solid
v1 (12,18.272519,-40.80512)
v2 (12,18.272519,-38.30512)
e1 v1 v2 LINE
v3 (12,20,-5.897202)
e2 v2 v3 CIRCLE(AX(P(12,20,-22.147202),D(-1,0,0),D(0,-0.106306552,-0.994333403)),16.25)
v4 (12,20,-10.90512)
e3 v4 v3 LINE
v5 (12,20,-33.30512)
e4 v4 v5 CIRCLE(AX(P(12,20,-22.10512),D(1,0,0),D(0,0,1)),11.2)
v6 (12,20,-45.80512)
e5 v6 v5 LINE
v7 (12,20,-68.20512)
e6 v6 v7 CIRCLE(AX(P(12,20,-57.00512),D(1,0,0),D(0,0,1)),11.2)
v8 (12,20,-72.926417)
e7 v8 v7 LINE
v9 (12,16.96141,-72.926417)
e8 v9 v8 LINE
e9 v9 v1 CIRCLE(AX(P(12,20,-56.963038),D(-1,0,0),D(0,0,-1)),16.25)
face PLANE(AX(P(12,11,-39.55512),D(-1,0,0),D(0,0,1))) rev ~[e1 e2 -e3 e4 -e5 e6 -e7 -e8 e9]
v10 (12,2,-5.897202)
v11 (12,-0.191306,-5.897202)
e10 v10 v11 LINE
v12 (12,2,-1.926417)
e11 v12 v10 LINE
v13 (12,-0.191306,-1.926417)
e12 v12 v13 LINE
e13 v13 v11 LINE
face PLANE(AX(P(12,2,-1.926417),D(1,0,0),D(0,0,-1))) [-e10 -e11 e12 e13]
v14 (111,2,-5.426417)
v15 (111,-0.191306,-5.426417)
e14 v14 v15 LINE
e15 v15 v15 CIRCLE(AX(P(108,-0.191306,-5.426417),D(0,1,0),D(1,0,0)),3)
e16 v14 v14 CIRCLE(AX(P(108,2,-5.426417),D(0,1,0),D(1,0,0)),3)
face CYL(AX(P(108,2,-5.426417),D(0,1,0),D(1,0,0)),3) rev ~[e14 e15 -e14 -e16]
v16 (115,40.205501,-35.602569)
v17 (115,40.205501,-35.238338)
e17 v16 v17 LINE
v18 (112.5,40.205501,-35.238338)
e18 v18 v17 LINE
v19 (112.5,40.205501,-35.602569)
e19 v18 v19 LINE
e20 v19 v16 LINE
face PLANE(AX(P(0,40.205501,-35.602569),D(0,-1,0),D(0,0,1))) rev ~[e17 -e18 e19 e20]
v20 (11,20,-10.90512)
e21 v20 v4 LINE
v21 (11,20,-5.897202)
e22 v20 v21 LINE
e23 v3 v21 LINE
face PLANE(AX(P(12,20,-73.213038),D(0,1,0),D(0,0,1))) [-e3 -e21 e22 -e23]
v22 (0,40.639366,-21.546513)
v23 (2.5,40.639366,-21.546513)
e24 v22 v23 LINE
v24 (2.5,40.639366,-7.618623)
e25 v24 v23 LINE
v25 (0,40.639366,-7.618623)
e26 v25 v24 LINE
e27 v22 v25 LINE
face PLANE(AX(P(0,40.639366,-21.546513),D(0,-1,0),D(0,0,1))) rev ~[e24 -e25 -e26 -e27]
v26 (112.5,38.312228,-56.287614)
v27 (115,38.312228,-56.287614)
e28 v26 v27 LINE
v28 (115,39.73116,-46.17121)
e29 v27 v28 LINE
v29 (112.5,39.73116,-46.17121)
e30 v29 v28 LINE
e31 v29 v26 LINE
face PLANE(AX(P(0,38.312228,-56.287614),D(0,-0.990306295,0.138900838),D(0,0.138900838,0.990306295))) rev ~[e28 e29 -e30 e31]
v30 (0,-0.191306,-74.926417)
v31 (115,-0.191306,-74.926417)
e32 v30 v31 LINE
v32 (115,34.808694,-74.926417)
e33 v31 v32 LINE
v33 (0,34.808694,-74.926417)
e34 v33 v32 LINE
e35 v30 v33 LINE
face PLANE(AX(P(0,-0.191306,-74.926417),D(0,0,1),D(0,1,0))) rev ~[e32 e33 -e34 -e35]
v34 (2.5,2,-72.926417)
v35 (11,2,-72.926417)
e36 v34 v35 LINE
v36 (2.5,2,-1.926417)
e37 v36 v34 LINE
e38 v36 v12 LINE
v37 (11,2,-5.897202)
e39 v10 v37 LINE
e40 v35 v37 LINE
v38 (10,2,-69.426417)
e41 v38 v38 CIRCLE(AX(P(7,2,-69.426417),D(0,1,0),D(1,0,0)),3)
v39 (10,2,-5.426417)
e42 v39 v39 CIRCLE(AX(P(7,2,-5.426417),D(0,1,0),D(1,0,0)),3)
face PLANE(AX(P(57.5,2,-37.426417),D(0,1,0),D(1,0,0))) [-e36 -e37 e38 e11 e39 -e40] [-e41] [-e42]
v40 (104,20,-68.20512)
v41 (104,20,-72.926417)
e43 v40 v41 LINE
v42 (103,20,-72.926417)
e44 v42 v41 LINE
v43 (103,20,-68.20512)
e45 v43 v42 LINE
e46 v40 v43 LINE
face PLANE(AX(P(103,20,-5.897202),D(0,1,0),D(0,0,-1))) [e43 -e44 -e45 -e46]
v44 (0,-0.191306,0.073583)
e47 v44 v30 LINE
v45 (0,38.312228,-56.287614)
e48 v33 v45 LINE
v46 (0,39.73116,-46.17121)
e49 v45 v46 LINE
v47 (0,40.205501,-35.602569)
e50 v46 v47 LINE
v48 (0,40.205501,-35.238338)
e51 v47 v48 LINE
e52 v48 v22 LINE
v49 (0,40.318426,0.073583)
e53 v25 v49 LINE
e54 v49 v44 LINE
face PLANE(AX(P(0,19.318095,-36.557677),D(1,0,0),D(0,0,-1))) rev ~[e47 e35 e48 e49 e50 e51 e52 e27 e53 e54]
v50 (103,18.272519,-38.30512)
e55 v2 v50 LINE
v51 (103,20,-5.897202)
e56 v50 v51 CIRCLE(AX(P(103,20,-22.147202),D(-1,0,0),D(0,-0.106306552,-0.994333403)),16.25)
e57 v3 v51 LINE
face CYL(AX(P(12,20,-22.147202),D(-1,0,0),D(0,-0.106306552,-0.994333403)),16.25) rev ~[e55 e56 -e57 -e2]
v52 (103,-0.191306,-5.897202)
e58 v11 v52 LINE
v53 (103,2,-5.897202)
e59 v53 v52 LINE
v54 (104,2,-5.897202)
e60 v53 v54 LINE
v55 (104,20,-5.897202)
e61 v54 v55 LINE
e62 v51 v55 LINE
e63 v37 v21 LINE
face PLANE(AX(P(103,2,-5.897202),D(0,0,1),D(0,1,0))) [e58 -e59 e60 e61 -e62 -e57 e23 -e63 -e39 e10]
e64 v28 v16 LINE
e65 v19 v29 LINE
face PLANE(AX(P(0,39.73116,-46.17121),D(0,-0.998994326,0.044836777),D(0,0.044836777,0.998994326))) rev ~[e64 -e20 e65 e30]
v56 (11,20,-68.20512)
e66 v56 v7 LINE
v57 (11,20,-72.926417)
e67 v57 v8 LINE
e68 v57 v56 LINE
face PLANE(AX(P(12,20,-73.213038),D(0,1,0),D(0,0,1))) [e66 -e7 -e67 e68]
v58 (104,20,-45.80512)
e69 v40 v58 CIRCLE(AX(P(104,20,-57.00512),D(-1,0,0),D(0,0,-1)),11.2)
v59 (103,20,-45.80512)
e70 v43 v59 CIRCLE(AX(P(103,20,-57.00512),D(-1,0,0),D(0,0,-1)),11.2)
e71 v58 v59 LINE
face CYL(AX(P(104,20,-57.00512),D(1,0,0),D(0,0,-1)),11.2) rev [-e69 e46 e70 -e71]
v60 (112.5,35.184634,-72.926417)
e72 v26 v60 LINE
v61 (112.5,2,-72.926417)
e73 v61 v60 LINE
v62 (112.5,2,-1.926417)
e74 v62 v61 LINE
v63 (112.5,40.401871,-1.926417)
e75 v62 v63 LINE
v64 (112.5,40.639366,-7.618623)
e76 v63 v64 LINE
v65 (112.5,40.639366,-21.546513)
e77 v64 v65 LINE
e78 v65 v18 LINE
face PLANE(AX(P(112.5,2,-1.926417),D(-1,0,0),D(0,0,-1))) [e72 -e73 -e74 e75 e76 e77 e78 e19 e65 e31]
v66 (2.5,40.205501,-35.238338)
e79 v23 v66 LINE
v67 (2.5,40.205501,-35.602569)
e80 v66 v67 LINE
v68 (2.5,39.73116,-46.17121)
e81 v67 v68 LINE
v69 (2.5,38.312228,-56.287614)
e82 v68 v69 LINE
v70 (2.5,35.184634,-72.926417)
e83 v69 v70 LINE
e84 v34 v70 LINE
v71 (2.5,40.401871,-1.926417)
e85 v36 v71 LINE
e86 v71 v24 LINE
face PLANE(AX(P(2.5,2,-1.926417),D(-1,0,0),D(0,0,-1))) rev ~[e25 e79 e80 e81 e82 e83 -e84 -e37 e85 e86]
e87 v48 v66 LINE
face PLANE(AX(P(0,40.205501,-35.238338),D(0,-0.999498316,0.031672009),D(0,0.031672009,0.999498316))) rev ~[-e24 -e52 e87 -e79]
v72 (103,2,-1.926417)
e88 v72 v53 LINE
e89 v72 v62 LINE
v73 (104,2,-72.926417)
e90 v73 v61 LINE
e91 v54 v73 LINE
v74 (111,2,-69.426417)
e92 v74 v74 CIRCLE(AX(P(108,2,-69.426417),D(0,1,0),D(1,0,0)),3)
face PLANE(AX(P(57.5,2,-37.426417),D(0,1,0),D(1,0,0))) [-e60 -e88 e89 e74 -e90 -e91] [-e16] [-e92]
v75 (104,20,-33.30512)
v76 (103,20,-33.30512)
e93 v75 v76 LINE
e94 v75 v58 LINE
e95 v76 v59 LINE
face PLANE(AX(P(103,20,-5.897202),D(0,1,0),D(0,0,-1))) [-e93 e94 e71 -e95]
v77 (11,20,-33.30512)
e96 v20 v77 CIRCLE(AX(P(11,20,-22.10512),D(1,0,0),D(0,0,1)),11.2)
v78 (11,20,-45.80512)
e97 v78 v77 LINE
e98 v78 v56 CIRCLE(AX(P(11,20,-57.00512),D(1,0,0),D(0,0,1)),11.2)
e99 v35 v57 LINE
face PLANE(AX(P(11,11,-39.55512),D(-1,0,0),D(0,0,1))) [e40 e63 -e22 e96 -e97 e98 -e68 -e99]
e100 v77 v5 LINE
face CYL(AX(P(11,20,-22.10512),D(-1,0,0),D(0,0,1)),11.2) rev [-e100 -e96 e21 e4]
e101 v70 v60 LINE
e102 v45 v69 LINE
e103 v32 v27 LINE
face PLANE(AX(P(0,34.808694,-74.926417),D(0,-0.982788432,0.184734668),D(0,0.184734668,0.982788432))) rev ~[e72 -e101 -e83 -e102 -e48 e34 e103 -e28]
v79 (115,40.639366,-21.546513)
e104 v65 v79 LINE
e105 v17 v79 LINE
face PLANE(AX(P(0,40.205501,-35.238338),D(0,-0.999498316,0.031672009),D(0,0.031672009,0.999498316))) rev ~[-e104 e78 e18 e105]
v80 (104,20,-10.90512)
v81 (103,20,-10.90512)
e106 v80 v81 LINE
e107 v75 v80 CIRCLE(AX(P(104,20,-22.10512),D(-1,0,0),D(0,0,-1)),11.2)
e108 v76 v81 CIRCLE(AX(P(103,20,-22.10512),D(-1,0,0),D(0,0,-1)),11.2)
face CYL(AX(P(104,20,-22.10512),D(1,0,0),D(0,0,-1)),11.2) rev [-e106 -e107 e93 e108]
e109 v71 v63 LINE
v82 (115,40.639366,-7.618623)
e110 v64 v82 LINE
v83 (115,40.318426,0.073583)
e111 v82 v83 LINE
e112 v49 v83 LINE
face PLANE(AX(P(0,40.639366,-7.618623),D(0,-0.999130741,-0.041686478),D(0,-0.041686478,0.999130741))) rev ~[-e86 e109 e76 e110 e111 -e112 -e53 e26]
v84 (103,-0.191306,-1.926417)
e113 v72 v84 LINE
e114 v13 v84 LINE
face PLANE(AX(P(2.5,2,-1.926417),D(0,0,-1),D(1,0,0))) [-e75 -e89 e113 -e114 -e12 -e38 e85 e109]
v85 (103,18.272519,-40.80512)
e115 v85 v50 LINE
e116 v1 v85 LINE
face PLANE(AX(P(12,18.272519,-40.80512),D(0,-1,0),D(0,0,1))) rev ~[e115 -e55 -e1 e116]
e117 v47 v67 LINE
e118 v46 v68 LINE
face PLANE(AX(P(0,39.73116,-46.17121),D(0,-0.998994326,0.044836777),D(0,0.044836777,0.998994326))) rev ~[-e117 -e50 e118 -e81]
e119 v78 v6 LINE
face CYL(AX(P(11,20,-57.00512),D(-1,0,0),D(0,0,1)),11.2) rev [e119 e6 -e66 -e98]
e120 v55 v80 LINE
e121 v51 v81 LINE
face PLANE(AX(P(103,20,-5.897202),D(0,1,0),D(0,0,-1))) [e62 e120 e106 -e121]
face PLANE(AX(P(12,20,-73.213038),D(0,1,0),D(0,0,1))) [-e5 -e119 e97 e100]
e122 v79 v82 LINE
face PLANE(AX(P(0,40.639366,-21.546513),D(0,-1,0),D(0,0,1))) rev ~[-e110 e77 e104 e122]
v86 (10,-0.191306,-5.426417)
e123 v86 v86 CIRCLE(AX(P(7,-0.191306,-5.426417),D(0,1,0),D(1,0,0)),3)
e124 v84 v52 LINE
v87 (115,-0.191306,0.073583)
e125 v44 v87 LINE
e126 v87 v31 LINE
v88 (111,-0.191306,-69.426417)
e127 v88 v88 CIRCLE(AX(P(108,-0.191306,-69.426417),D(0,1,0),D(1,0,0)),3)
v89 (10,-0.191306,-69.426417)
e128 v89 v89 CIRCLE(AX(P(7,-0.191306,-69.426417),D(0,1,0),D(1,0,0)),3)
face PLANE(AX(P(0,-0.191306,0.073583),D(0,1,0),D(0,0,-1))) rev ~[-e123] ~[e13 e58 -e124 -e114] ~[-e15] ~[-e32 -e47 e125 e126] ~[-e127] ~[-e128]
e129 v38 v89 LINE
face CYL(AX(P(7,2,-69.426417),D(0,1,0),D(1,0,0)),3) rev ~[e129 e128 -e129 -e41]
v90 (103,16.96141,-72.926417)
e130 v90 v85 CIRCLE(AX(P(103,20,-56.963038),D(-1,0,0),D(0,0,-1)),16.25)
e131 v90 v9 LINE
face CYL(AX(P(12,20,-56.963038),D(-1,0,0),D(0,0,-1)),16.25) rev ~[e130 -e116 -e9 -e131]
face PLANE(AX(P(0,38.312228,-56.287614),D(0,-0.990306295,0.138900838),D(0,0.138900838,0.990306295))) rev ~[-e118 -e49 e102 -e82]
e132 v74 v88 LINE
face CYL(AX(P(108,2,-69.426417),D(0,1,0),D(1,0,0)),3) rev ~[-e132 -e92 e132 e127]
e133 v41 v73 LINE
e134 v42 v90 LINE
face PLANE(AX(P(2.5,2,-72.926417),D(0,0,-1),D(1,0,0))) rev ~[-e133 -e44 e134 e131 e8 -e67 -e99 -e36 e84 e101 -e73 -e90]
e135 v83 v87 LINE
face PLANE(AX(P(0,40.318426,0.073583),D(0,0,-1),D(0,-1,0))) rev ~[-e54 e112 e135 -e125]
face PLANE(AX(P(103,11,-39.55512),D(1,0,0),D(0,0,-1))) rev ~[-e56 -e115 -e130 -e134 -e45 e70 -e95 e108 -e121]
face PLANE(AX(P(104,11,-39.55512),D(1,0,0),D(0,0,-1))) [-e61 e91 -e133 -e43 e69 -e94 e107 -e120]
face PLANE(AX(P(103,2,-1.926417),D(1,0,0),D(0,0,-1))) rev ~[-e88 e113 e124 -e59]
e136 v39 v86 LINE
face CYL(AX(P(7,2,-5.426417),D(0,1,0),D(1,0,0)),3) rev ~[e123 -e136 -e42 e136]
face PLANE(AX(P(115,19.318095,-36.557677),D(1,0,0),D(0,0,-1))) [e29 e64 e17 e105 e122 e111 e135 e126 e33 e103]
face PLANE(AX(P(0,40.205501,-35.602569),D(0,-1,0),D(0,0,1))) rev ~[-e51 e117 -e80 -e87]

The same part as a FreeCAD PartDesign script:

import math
import FreeCAD as App
import Part
import Sketcher

V = App.Vector

doc = App.newDocument("Part")
body = doc.addObject("PartDesign::Body", "Body")

sketch1 = doc.addObject("Sketcher::SketchObject", "Sketch")
body.addObject(sketch1)
sketch1.AttachmentSupport = (doc.YZ_Plane, [""])
sketch1.MapMode = "FlatFace"
sketch1.addGeometry([
    Part.LineSegment(V(40.64, -21.55, 0), V(40.64, -7.62, 0)),
    Part.LineSegment(V(40.64, -7.62, 0), V(40.32, 0.07, 0)),
    Part.LineSegment(V(40.32, 0.07, 0), V(-0.19, 0.07, 0)),
    Part.LineSegment(V(-0.19, 0.07, 0), V(-0.19, -74.93, 0)),
    Part.LineSegment(V(-0.19, -74.93, 0), V(34.81, -74.93, 0)),
    Part.LineSegment(V(34.81, -74.93, 0), V(38.31, -56.29, 0)),
    Part.LineSegment(V(38.31, -56.29, 0), V(39.73, -46.17, 0)),
    Part.LineSegment(V(39.73, -46.17, 0), V(40.21, -35.6, 0)),
    Part.LineSegment(V(40.21, -35.6, 0), V(40.21, -35.24, 0)),
    Part.LineSegment(V(40.21, -35.24, 0), V(40.64, -21.55, 0)),
], False)
sketch1.addConstraint([
    Sketcher.Constraint("Coincident", 0, 2, 1, 1),
    Sketcher.Constraint("Coincident", 1, 2, 2, 1),
    Sketcher.Constraint("Coincident", 2, 2, 3, 1),
    Sketcher.Constraint("Coincident", 3, 2, 4, 1),
    Sketcher.Constraint("Coincident", 4, 2, 5, 1),
    Sketcher.Constraint("Coincident", 5, 2, 6, 1),
    Sketcher.Constraint("Coincident", 6, 2, 7, 1),
    Sketcher.Constraint("Coincident", 7, 2, 8, 1),
    Sketcher.Constraint("Coincident", 8, 2, 9, 1),
    Sketcher.Constraint("Coincident", 9, 2, 0, 1),
    Sketcher.Constraint("Vertical", 0),
    Sketcher.Constraint("Horizontal", 2),
    Sketcher.Constraint("Vertical", 3),
    Sketcher.Constraint("Horizontal", 4),
    Sketcher.Constraint("Vertical", 8),
    Sketcher.Constraint("DistanceX", 4, 1, 4, 2, 35.0),
    Sketcher.Constraint("DistanceY", 3, 2, 3, 1, 75.0),
    Sketcher.Constraint("Distance", 1, 7.698898),
    Sketcher.Constraint("DistanceY", 0, 1, 0, 2, 13.927891),
    Sketcher.Constraint("DistanceY", 8, 1, 8, 2, 0.364231),
    Sketcher.Constraint("DistanceX", -1, 1, 7, 2, 40.205501),
    Sketcher.Constraint("Distance", 6, 10.215429),
    Sketcher.Constraint("Distance", 7, 10.579281),
    Sketcher.Constraint("DistanceX", 2, 2, 2, 1, 40.509732),
    Sketcher.Constraint("DistanceX", -1, 1, 5, 2, 38.312228),
    Sketcher.Constraint("DistanceX", -1, 1, 6, 2, 39.73116),
    Sketcher.Constraint("DistanceY", 6, 2, -1, 1, 46.17121),
    Sketcher.Constraint("DistanceX", 1, 2, 0, 2, 0.32094),
    Sketcher.Constraint("DistanceY", 5, 2, 0, 2, 48.668991),
    Sketcher.Constraint("Distance", 5, 18.965224),
])
pad1 = doc.addObject("PartDesign::Pad", "Pad")
body.addObject(pad1)
pad1.Profile = sketch1
pad1.Length = 115

sketch2 = doc.addObject("Sketcher::SketchObject", "Sketch001")
body.addObject(sketch2)
sketch2.AttachmentSupport = (doc.XZ_Plane, [""])
sketch2.MapMode = "FlatFace"
sketch2.AttachmentOffset = App.Placement(V(0, 0, -2), App.Rotation())
sketch2.addGeometry([
    Part.LineSegment(V(2, -73, 0), V(2, -2, 0)),
    Part.LineSegment(V(2, -2, 0), V(112, -2, 0)),
    Part.LineSegment(V(112, -2, 0), V(112, -73, 0)),
    Part.LineSegment(V(112, -73, 0), V(2, -73, 0)),
], False)
sketch2.addConstraint([
    Sketcher.Constraint("Coincident", 0, 2, 1, 1),
    Sketcher.Constraint("Coincident", 1, 2, 2, 1),
    Sketcher.Constraint("Coincident", 2, 2, 3, 1),
    Sketcher.Constraint("Coincident", 3, 2, 0, 1),
    Sketcher.Constraint("Vertical", 0),
    Sketcher.Constraint("Horizontal", 1),
    Sketcher.Constraint("Vertical", 2),
    Sketcher.Constraint("Horizontal", 3),
    Sketcher.Constraint("DistanceX", 1, 1, 1, 2, 110.0),
    Sketcher.Constraint("DistanceY", 0, 1, 0, 2, 71.0),
    Sketcher.Constraint("DistanceX", -1, 1, 0, 2, 2.5),
    Sketcher.Constraint("DistanceY", 0, 2, -1, 1, 1.926417),
])
pocket1 = doc.addObject("PartDesign::Pocket", "Pocket")
body.addObject(pocket1)
pocket1.Profile = sketch2
pocket1.Length = 115

sketch3 = doc.addObject("Sketcher::SketchObject", "Sketch002")
body.addObject(sketch3)
sketch3.AttachmentSupport = (doc.YZ_Plane, [""])
sketch3.MapMode = "FlatFace"
sketch3.AttachmentOffset = App.Placement(V(0, 0, 12), App.Rotation())
sketch3.addGeometry([
    Part.LineSegment(V(20, -73.2, 0), V(2, -73.2, 0)),
    Part.LineSegment(V(2, -73.2, 0), V(2, -5.9, 0)),
    Part.LineSegment(V(2, -5.9, 0), V(20, -5.9, 0)),
    Part.ArcOfCircle(Part.Circle(V(20, -22.1, 0), V(0, 0, 1), 16.2), math.radians(90), math.radians(264)),
    Part.LineSegment(V(18.3, -38.3, 0), V(18.3, -40.8, 0)),
    Part.ArcOfCircle(Part.Circle(V(20, -57, 0), V(0, 0, 1), 16.2), math.radians(96), math.radians(270)),
], False)
sketch3.addConstraint([
    Sketcher.Constraint("Coincident", 0, 2, 1, 1),
    Sketcher.Constraint("Coincident", 1, 2, 2, 1),
    Sketcher.Constraint("Tangent", 2, 2, 3, 1),
    Sketcher.Constraint("Coincident", 3, 2, 4, 1),
    Sketcher.Constraint("Coincident", 4, 2, 5, 1),
    Sketcher.Constraint("Tangent", 5, 2, 0, 1),
    Sketcher.Constraint("Horizontal", 0),
    Sketcher.Constraint("Vertical", 1),
    Sketcher.Constraint("Horizontal", 2),
    Sketcher.Constraint("Vertical", 4),
    Sketcher.Constraint("Equal", 3, 5),
    Sketcher.Constraint("Vertical", 3, 3, 5, 3),
    Sketcher.Constraint("DistanceX", 0, 2, 0, 1, 18.0),
    Sketcher.Constraint("Radius", 3, 16.25),
    Sketcher.Constraint("DistanceY", 4, 2, 4, 1, 2.5),
    Sketcher.Constraint("DistanceX", -1, 1, 3, 3, 20.0),
    Sketcher.Constraint("DistanceY", 1, 1, 1, 2, 67.315836),
    Sketcher.Constraint("DistanceY", 3, 2, -1, 1, 38.30512),
])
pad2 = doc.addObject("PartDesign::Pad", "Pad001")
body.addObject(pad2)
pad2.Profile = sketch3
pad2.Length = 91

sketch4 = doc.addObject("Sketcher::SketchObject", "Sketch003")
body.addObject(sketch4)
sketch4.AttachmentSupport = (doc.XZ_Plane, [""])
sketch4.MapMode = "FlatFace"
sketch4.AttachmentOffset = App.Placement(V(0, 0, -2), App.Rotation())
sketch4.addGeometry([
    Part.Circle(V(7, -69.4, 0), V(0, 0, 1), 3),
    Part.Circle(V(108, -69.4, 0), V(0, 0, 1), 3),
    Part.Circle(V(108, -5.4, 0), V(0, 0, 1), 3),
    Part.Circle(V(7, -5.4, 0), V(0, 0, 1), 3),
    Part.LineSegment(V(12, -5.9, 0), V(12, -1.9, 0)),
    Part.LineSegment(V(12, -1.9, 0), V(103, -1.9, 0)),
    Part.LineSegment(V(103, -1.9, 0), V(103, -5.9, 0)),
    Part.LineSegment(V(103, -5.9, 0), V(12, -5.9, 0)),
], False)
sketch4.addConstraint([
    Sketcher.Constraint("Coincident", 4, 2, 5, 1),
    Sketcher.Constraint("Coincident", 5, 2, 6, 1),
    Sketcher.Constraint("Coincident", 6, 2, 7, 1),
    Sketcher.Constraint("Coincident", 7, 2, 4, 1),
    Sketcher.Constraint("Vertical", 4),
    Sketcher.Constraint("Horizontal", 5),
    Sketcher.Constraint("Vertical", 6),
    Sketcher.Constraint("Horizontal", 7),
    Sketcher.Constraint("Equal", 0, 1),
    Sketcher.Constraint("Equal", 1, 2),
    Sketcher.Constraint("Equal", 2, 3),
    Sketcher.Constraint("Horizontal", 0, 3, 1, 3),
    Sketcher.Constraint("Horizontal", 2, 3, 3, 3),
    Sketcher.Constraint("Vertical", 1, 3, 2, 3),
    Sketcher.Constraint("Vertical", 0, 3, 3, 3),
    Sketcher.Constraint("Diameter", 0, 6.0),
    Sketcher.Constraint("DistanceX", 5, 1, 5, 2, 91.0),
    Sketcher.Constraint("DistanceX", -1, 1, 0, 3, 7.0),
    Sketcher.Constraint("DistanceX", -1, 1, 1, 3, 108.0),
    Sketcher.Constraint("DistanceX", -1, 1, 4, 2, 12.0),
    Sketcher.Constraint("DistanceY", 1, 3, 2, 3, 64.0),
    Sketcher.Constraint("DistanceY", 3, 3, 4, 2, 3.5),
    Sketcher.Constraint("DistanceY", 4, 1, 4, 2, 3.970785),
    Sketcher.Constraint("DistanceY", 0, 3, -1, 1, 69.426417),
])
pocket2 = doc.addObject("PartDesign::Pocket", "Pocket001")
body.addObject(pocket2)
pocket2.Profile = sketch4
pocket2.Type = "ThroughAll"
pocket2.Reversed = True

sketch5 = doc.addObject("Sketcher::SketchObject", "Sketch004")
body.addObject(sketch5)
sketch5.AttachmentSupport = (doc.YZ_Plane, [""])
sketch5.MapMode = "FlatFace"
sketch5.AttachmentOffset = App.Placement(V(0, 0, 12), App.Rotation())
sketch5.addGeometry([
    Part.LineSegment(V(20, -73, 0), V(2, -73, 0)),
    Part.LineSegment(V(2, -73, 0), V(2, -6, 0)),
    Part.LineSegment(V(2, -6, 0), V(20, -6, 0)),
    Part.LineSegment(V(20, -6, 0), V(20, -73, 0)),
], False)
sketch5.addConstraint([
    Sketcher.Constraint("Coincident", 0, 2, 1, 1),
    Sketcher.Constraint("Coincident", 1, 2, 2, 1),
    Sketcher.Constraint("Coincident", 2, 2, 3, 1),
    Sketcher.Constraint("Coincident", 3, 2, 0, 1),
    Sketcher.Constraint("Horizontal", 0),
    Sketcher.Constraint("Vertical", 1),
    Sketcher.Constraint("Horizontal", 2),
    Sketcher.Constraint("Vertical", 3),
    Sketcher.Constraint("DistanceX", 0, 2, 0, 1, 18.0),
    Sketcher.Constraint("DistanceX", -1, 1, 0, 2, 2.0),
    Sketcher.Constraint("DistanceY", 1, 1, 1, 2, 67.315836),
    Sketcher.Constraint("DistanceY", 0, 2, -1, 1, 73.213038),
])
pad3 = doc.addObject("PartDesign::Pad", "Pad002")
body.addObject(pad3)
pad3.Profile = sketch5
pad3.Length = 1
pad3.Reversed = True

sketch6 = doc.addObject("Sketcher::SketchObject", "Sketch005")
body.addObject(sketch6)
sketch6.AttachmentSupport = (doc.YZ_Plane, [""])
sketch6.MapMode = "FlatFace"
sketch6.AttachmentOffset = App.Placement(V(0, 0, 103), App.Rotation())
sketch6.addGeometry([
    Part.LineSegment(V(20, -6, 0), V(2, -6, 0)),
    Part.LineSegment(V(2, -6, 0), V(2, -73, 0)),
    Part.LineSegment(V(2, -73, 0), V(20, -73, 0)),
    Part.LineSegment(V(20, -73, 0), V(20, -6, 0)),
], False)
sketch6.addConstraint([
    Sketcher.Constraint("Coincident", 0, 2, 1, 1),
    Sketcher.Constraint("Coincident", 1, 2, 2, 1),
    Sketcher.Constraint("Coincident", 2, 2, 3, 1),
    Sketcher.Constraint("Coincident", 3, 2, 0, 1),
    Sketcher.Constraint("Horizontal", 0),
    Sketcher.Constraint("Vertical", 1),
    Sketcher.Constraint("Horizontal", 2),
    Sketcher.Constraint("Vertical", 3),
    Sketcher.Constraint("DistanceX", 0, 2, 0, 1, 18.0),
    Sketcher.Constraint("DistanceX", -1, 1, 0, 2, 2.0),
    Sketcher.Constraint("DistanceY", 1, 2, 1, 1, 67.315836),
    Sketcher.Constraint("DistanceY", 0, 2, -1, 1, 5.897202),
])
pad4 = doc.addObject("PartDesign::Pad", "Pad003")
body.addObject(pad4)
pad4.Profile = sketch6
pad4.Length = 1

sketch7 = doc.addObject("Sketcher::SketchObject", "Sketch006")
body.addObject(sketch7)
sketch7.AttachmentSupport = (doc.YZ_Plane, [""])
sketch7.MapMode = "FlatFace"
sketch7.AttachmentOffset = App.Placement(V(0, 0, 11), App.Rotation())
sketch7.addGeometry([
    Part.LineSegment(V(20, -46, 0), V(20, -68, 0)),
    Part.ArcOfCircle(Part.Circle(V(20, -57, 0), V(0, 0, 1), 11), math.radians(90), math.radians(270)),
    Part.LineSegment(V(20, -11, 0), V(20, -33, 0)),
    Part.ArcOfCircle(Part.Circle(V(20, -22, 0), V(0, 0, 1), 11), math.radians(90), math.radians(270)),
], False)
sketch7.addConstraint([
    Sketcher.Constraint("Coincident", 0, 1, 1, 1),
    Sketcher.Constraint("Coincident", 1, 2, 0, 2),
    Sketcher.Constraint("Coincident", 2, 1, 3, 1),
    Sketcher.Constraint("Coincident", 3, 2, 2, 2),
    Sketcher.Constraint("Vertical", 0),
    Sketcher.Constraint("Vertical", 2),
    Sketcher.Constraint("Equal", 1, 3),
    Sketcher.Constraint("Vertical", 1, 3, 3, 3),
    Sketcher.Constraint("Vertical", 3, 3, 0, 1),
    Sketcher.Constraint("Vertical", 1, 2, 2, 1),
    Sketcher.Constraint("Radius", 1, 11.2),
    Sketcher.Constraint("DistanceX", -1, 1, 1, 3, 20.0),
    Sketcher.Constraint("DistanceY", 1, 3, 3, 3, 34.9),
    Sketcher.Constraint("DistanceY", 1, 3, -1, 1, 57.00512),
])
pocket3 = doc.addObject("PartDesign::Pocket", "Pocket002")
body.addObject(pocket3)
pocket3.Profile = sketch7
pocket3.Length = 1
pocket3.Reversed = True

sketch8 = doc.addObject("Sketcher::SketchObject", "Sketch007")
body.addObject(sketch8)
sketch8.AttachmentSupport = (doc.YZ_Plane, [""])
sketch8.MapMode = "FlatFace"
sketch8.AttachmentOffset = App.Placement(V(0, 0, 104), App.Rotation())
sketch8.addGeometry([
    Part.LineSegment(V(20, -33, 0), V(20, -11, 0)),
    Part.ArcOfCircle(Part.Circle(V(20, -22, 0), V(0, 0, 1), 11), math.radians(90), math.radians(270)),
    Part.LineSegment(V(20, -68, 0), V(20, -46, 0)),
    Part.ArcOfCircle(Part.Circle(V(20, -57, 0), V(0, 0, 1), 11), math.radians(90), math.radians(270)),
], False)
sketch8.addConstraint([
    Sketcher.Constraint("Coincident", 0, 1, 1, 2),
    Sketcher.Constraint("Coincident", 1, 1, 0, 2),
    Sketcher.Constraint("Coincident", 2, 1, 3, 2),
    Sketcher.Constraint("Coincident", 3, 1, 2, 2),
    Sketcher.Constraint("Vertical", 0),
    Sketcher.Constraint("Vertical", 2),
    Sketcher.Constraint("Equal", 1, 3),
    Sketcher.Constraint("Vertical", 1, 3, 3, 3),
    Sketcher.Constraint("Vertical", 3, 3, 0, 1),
    Sketcher.Constraint("Vertical", 1, 1, 2, 1),
    Sketcher.Constraint("Radius", 1, 11.2),
    Sketcher.Constraint("DistanceX", -1, 1, 1, 3, 20.0),
    Sketcher.Constraint("DistanceY", 3, 3, 1, 3, 34.9),
    Sketcher.Constraint("DistanceY", 1, 3, -1, 1, 22.10512),
])
pocket4 = doc.addObject("PartDesign::Pocket", "Pocket003")
body.addObject(pocket4)
pocket4.Profile = sketch8
pocket4.Length = 1

doc.recompute()
